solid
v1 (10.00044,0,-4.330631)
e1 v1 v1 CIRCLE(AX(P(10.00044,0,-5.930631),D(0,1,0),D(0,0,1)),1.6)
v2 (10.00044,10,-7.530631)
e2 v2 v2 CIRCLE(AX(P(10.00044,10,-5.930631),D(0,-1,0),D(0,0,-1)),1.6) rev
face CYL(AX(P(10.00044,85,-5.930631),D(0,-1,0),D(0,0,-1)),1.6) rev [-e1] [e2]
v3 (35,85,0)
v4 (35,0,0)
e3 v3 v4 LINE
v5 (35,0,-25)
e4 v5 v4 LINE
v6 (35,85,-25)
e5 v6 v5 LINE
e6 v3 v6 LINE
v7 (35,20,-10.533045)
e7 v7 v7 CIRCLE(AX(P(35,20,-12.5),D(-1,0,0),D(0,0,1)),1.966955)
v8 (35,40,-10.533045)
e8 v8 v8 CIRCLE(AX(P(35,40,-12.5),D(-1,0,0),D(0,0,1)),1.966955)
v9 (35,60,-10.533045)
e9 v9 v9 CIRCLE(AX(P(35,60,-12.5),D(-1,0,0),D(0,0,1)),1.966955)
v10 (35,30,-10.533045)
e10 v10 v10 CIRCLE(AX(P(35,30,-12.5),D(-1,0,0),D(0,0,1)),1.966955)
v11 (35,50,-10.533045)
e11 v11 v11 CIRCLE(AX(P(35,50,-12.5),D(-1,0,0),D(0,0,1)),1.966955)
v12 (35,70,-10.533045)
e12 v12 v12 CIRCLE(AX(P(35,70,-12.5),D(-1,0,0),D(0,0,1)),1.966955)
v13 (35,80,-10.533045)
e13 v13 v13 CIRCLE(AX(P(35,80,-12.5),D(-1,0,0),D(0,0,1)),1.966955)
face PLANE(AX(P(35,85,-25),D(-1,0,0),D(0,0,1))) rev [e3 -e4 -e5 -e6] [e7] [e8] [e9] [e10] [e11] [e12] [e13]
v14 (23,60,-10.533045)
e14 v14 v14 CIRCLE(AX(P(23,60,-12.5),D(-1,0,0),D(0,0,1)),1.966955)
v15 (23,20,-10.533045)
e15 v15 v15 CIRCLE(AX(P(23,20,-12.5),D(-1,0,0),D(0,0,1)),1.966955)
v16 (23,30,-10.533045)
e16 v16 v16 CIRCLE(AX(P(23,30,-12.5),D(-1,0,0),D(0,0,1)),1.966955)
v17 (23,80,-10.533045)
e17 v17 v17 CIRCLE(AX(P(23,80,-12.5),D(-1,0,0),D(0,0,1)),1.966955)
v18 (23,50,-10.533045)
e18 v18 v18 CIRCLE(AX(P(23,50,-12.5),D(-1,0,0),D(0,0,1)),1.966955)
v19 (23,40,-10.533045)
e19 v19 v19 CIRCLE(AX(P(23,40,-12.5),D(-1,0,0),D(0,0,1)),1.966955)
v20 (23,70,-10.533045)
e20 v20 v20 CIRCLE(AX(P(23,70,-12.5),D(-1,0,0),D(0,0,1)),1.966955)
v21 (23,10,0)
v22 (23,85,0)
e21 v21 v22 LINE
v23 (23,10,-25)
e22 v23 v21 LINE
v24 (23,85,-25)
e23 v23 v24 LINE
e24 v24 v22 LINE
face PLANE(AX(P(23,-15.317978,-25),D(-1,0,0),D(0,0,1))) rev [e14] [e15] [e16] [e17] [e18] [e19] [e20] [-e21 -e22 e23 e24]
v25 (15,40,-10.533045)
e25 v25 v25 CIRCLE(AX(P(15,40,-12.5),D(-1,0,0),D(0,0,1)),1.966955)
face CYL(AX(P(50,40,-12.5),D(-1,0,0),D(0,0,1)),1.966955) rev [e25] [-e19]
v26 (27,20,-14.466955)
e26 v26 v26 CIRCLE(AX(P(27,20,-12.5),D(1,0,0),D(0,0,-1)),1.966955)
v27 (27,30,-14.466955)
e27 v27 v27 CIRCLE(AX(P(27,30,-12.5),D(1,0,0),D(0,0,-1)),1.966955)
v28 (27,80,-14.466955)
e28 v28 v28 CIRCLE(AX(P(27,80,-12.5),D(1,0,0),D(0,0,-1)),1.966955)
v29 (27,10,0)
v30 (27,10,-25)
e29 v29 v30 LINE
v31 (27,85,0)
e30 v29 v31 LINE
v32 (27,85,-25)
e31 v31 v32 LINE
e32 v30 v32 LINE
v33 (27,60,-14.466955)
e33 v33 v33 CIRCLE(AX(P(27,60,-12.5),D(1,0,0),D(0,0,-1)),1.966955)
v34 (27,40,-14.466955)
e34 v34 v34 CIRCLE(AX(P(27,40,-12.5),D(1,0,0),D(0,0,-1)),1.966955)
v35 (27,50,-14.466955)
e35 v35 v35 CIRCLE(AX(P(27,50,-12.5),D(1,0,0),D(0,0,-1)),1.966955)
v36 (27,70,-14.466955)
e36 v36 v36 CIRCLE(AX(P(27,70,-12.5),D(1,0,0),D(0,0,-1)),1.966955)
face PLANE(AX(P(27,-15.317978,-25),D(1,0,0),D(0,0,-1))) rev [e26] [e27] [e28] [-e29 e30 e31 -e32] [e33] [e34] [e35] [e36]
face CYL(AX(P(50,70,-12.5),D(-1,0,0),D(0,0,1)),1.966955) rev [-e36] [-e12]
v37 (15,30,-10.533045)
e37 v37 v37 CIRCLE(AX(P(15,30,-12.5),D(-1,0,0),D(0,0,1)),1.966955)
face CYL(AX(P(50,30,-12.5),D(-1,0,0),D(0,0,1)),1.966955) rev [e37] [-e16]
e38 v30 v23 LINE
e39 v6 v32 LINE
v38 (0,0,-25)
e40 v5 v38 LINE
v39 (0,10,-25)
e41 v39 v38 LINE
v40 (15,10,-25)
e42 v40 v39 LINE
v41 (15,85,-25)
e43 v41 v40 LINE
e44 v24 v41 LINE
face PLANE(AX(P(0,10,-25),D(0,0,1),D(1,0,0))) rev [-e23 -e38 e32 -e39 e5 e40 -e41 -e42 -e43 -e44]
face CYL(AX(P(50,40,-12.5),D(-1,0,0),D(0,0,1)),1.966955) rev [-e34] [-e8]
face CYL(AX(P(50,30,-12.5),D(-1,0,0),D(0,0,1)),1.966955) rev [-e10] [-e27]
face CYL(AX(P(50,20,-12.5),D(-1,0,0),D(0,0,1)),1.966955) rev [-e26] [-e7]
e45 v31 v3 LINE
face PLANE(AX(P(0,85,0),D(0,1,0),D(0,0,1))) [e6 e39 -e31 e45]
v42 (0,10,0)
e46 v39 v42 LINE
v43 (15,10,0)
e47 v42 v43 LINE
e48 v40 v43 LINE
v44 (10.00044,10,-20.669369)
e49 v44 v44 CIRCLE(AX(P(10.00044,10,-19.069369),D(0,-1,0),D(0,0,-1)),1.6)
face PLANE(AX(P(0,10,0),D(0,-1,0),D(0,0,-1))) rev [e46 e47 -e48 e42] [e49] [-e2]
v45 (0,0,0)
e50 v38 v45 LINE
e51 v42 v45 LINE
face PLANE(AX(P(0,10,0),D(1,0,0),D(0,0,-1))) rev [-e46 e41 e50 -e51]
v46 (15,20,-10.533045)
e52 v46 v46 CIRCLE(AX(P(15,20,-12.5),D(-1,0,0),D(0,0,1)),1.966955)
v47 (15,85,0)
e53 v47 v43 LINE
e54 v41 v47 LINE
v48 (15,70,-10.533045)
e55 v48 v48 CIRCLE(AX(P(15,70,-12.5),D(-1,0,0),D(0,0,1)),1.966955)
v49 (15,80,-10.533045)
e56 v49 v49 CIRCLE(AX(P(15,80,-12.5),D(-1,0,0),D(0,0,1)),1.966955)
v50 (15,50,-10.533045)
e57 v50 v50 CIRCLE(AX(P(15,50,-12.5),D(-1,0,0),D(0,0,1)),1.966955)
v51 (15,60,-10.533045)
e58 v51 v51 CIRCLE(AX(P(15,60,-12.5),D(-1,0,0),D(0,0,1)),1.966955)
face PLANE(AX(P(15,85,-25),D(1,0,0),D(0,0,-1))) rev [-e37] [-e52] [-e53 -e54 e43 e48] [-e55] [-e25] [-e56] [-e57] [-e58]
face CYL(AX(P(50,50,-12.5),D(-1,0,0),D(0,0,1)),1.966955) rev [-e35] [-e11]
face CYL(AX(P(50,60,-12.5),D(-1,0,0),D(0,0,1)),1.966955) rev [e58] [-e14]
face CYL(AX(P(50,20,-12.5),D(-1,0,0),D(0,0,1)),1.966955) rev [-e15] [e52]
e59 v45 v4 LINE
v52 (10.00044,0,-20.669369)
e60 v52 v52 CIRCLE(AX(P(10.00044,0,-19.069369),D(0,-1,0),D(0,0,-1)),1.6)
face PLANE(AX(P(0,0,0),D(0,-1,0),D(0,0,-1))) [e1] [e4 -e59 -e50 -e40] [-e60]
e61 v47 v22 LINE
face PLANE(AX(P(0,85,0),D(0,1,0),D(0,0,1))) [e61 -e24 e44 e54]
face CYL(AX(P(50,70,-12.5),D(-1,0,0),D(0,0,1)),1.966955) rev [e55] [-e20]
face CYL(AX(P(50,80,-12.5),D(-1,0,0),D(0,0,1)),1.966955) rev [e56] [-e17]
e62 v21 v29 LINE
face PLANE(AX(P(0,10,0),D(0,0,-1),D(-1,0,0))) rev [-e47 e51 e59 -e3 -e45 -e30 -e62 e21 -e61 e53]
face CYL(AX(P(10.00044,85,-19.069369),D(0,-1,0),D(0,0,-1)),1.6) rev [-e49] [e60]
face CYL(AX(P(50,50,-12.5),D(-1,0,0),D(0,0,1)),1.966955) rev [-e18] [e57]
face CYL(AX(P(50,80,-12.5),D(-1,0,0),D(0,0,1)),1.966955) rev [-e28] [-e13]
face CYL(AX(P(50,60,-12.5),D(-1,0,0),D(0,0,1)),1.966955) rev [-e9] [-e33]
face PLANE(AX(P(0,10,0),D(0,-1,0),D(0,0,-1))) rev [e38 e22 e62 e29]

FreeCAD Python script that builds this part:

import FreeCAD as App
import Part
import Sketcher


def add_polygon(sketch, points):
    """Adds a closed chain of lines whose ends are joined by coincident constraints."""
    first, n = sketch.GeometryCount, len(points)
    for a, b in zip(points, points[1:] + points[:1]):
        sketch.addGeometry(Part.LineSegment(App.Vector(*a, 0), App.Vector(*b, 0)), False)
    for i in range(n):
        sketch.addConstraint(Sketcher.Constraint("Coincident", first + i, 2, first + (i + 1) % n, 1))

doc = App.newDocument("Part")
body = doc.addObject("PartDesign::Body", "Body")

# Sketch on XZ plane
sketch1 = body.newObject("Sketcher::SketchObject", "Sketch")
sketch1.AttachmentSupport = (doc.getObject("XZ_Plane"), [""])
sketch1.MapMode = "FlatFace"
add_polygon(sketch1, [(0, -25), (0, 0), (50, 0), (50, -25)])  # lines 0-3
sketch1.addConstraint([
    Sketcher.Constraint("Vertical", 0),
    Sketcher.Constraint("Horizontal", 1),
    Sketcher.Constraint("Vertical", 2),
    Sketcher.Constraint("Horizontal", 3),
    Sketcher.Constraint("Coincident", 0, 2, -1, 1),
    Sketcher.Constraint("DistanceX", 1, 1, 1, 2, 50.0),
    Sketcher.Constraint("DistanceY", 0, 1, 0, 2, 25.0),
])
pad1 = body.newObject("PartDesign::Pad", "Pad")
pad1.Profile = sketch1
pad1.Length = 10
pad1.Reversed = True

# Sketch on XZ plane
sketch2 = body.newObject("Sketcher::SketchObject", "Sketch001")
sketch2.AttachmentSupport = (doc.getObject("XZ_Plane"), [""])
sketch2.MapMode = "FlatFace"
sketch2.AttachmentOffset = App.Placement(App.Vector(0, 0, -10), App.Rotation())
add_polygon(sketch2, [(15, -25), (15, 0), (35, 0), (35, -25)])  # lines 0-3
sketch2.addConstraint([
    Sketcher.Constraint("Vertical", 0),
    Sketcher.Constraint("Horizontal", 1),
    Sketcher.Constraint("Vertical", 2),
    Sketcher.Constraint("Horizontal", 3),
    Sketcher.Constraint("PointOnObject", 0, 2, -1),
    Sketcher.Constraint("DistanceX", 1, 1, 1, 2, 20.0),
    Sketcher.Constraint("DistanceY", 0, 1, 0, 2, 25.0),
    Sketcher.Constraint("DistanceX", -1, 1, 0, 2, 15.0),
])
pad2 = body.newObject("PartDesign::Pad", "Pad001")
pad2.Profile = sketch2
pad2.Length = 75
pad2.Reversed = True

# Sketch on XZ plane
sketch3 = body.newObject("Sketcher::SketchObject", "Sketch002")
sketch3.AttachmentSupport = (doc.getObject("XZ_Plane"), [""])
sketch3.MapMode = "FlatFace"
sketch3.AttachmentOffset = App.Placement(App.Vector(0, 0, -85), App.Rotation())
add_polygon(sketch3, [(23, -25), (23, 0), (27, 0), (27, -25)])  # lines 0-3
sketch3.addConstraint([
    Sketcher.Constraint("Vertical", 0),
    Sketcher.Constraint("Horizontal", 1),
    Sketcher.Constraint("Vertical", 2),
    Sketcher.Constraint("Horizontal", 3),
    Sketcher.Constraint("PointOnObject", 0, 2, -1),
    Sketcher.Constraint("DistanceX", 1, 1, 1, 2, 4.0),
    Sketcher.Constraint("DistanceY", 0, 1, 0, 2, 25.0),
    Sketcher.Constraint("DistanceX", -1, 1, 0, 2, 23.0),
])
pocket1 = body.newObject("PartDesign::Pocket", "Pocket")
pocket1.Profile = sketch3
pocket1.Length = 75
pocket1.Reversed = True

# Sketch on YZ plane
sketch4 = body.newObject("Sketcher::SketchObject", "Sketch003")
sketch4.AttachmentSupport = (doc.getObject("YZ_Plane"), [""])
sketch4.MapMode = "FlatFace"
sketch4.AttachmentOffset = App.Placement(App.Vector(0, 0, 15), App.Rotation())
sketch4.addGeometry(Part.Circle(App.Vector(80, -12.5, 0), App.Vector(0, 0, 1), 1.966955), False)
sketch4.addConstraint([
    Sketcher.Constraint("DistanceX", -1, 1, 0, 3, 80.0),
    Sketcher.Constraint("DistanceY", 0, 3, -1, 1, 12.5),
    Sketcher.Constraint("Diameter", 0, 3.93391),
])
pocket2 = body.newObject("PartDesign::Pocket", "Pocket001")
pocket2.Profile = sketch4
pocket2.Type = "ThroughAll"
pocket2.Reversed = True
doc.recompute()

linearpattern = body.newObject("PartDesign::LinearPattern", "LinearPattern")
linearpattern.Originals = [pocket2]
linearpattern.Direction = (doc.getObject("Y_Axis"), [""])
linearpattern.Mode = "offset"
linearpattern.Offset = 10
linearpattern.Occurrences = 7
linearpattern.Reversed = True
body.Tip = linearpattern

# Sketch on XZ plane
sketch5 = body.newObject("Sketcher::SketchObject", "Sketch004")
sketch5.AttachmentSupport = (doc.getObject("XZ_Plane"), [""])
sketch5.MapMode = "FlatFace"
sketch5.AttachmentOffset = App.Placement(App.Vector(0, 0, -10), App.Rotation())
add_polygon(sketch5, [(35, -25), (35, 0), (50, 0), (50, -25)])  # lines 0-3
sketch5.addConstraint([
    Sketcher.Constraint("Vertical", 0),
    Sketcher.Constraint("Horizontal", 1),
    Sketcher.Constraint("Vertical", 2),
    Sketcher.Constraint("Horizontal", 3),
    Sketcher.Constraint("PointOnObject", 0, 2, -1),
    Sketcher.Constraint("DistanceX", 1, 1, 1, 2, 15.0),
    Sketcher.Constraint("DistanceY", 0, 1, 0, 2, 25.0),
    Sketcher.Constraint("DistanceX", -1, 1, 0, 2, 35.0),
])
pocket3 = body.newObject("PartDesign::Pocket", "Pocket002")
pocket3.Profile = sketch5
pocket3.Type = "ThroughAll"
pocket3.Reversed = True

# Sketch on XZ plane
sketch6 = body.newObject("Sketcher::SketchObject", "Sketch005")
sketch6.AttachmentSupport = (doc.getObject("XZ_Plane"), [""])
sketch6.MapMode = "FlatFace"
sketch6.addGeometry(Part.Circle(App.Vector(10.00044, -19.069369, 0), App.Vector(0, 0, 1), 1.6), False)
sketch6.addConstraint([
    Sketcher.Constraint("Diameter", 0, 3.2),
    Sketcher.Constraint("DistanceX", -1, 1, 0, 3, 10.00044),
    Sketcher.Constraint("DistanceY", 0, 3, -1, 1, 19.069369),
])
pocket4 = body.newObject("PartDesign::Pocket", "Pocket003")
pocket4.Profile = sketch6
pocket4.Type = "ThroughAll"
doc.recompute()

datumplane = body.newObject("PartDesign::Plane", "DatumPlane")
datumplane.AttachmentSupport = (doc.getObject("XY_Plane"), [""])
datumplane.MapMode = "FlatFace"
datumplane.AttachmentOffset = App.Placement(App.Vector(0, 0, -12.5), App.Rotation())
mirrored = body.newObject("PartDesign::Mirrored", "Mirrored")
mirrored.Originals = [pocket4]
mirrored.MirrorPlane = (datumplane, [""])
body.Tip = mirrored

doc.recompute()
